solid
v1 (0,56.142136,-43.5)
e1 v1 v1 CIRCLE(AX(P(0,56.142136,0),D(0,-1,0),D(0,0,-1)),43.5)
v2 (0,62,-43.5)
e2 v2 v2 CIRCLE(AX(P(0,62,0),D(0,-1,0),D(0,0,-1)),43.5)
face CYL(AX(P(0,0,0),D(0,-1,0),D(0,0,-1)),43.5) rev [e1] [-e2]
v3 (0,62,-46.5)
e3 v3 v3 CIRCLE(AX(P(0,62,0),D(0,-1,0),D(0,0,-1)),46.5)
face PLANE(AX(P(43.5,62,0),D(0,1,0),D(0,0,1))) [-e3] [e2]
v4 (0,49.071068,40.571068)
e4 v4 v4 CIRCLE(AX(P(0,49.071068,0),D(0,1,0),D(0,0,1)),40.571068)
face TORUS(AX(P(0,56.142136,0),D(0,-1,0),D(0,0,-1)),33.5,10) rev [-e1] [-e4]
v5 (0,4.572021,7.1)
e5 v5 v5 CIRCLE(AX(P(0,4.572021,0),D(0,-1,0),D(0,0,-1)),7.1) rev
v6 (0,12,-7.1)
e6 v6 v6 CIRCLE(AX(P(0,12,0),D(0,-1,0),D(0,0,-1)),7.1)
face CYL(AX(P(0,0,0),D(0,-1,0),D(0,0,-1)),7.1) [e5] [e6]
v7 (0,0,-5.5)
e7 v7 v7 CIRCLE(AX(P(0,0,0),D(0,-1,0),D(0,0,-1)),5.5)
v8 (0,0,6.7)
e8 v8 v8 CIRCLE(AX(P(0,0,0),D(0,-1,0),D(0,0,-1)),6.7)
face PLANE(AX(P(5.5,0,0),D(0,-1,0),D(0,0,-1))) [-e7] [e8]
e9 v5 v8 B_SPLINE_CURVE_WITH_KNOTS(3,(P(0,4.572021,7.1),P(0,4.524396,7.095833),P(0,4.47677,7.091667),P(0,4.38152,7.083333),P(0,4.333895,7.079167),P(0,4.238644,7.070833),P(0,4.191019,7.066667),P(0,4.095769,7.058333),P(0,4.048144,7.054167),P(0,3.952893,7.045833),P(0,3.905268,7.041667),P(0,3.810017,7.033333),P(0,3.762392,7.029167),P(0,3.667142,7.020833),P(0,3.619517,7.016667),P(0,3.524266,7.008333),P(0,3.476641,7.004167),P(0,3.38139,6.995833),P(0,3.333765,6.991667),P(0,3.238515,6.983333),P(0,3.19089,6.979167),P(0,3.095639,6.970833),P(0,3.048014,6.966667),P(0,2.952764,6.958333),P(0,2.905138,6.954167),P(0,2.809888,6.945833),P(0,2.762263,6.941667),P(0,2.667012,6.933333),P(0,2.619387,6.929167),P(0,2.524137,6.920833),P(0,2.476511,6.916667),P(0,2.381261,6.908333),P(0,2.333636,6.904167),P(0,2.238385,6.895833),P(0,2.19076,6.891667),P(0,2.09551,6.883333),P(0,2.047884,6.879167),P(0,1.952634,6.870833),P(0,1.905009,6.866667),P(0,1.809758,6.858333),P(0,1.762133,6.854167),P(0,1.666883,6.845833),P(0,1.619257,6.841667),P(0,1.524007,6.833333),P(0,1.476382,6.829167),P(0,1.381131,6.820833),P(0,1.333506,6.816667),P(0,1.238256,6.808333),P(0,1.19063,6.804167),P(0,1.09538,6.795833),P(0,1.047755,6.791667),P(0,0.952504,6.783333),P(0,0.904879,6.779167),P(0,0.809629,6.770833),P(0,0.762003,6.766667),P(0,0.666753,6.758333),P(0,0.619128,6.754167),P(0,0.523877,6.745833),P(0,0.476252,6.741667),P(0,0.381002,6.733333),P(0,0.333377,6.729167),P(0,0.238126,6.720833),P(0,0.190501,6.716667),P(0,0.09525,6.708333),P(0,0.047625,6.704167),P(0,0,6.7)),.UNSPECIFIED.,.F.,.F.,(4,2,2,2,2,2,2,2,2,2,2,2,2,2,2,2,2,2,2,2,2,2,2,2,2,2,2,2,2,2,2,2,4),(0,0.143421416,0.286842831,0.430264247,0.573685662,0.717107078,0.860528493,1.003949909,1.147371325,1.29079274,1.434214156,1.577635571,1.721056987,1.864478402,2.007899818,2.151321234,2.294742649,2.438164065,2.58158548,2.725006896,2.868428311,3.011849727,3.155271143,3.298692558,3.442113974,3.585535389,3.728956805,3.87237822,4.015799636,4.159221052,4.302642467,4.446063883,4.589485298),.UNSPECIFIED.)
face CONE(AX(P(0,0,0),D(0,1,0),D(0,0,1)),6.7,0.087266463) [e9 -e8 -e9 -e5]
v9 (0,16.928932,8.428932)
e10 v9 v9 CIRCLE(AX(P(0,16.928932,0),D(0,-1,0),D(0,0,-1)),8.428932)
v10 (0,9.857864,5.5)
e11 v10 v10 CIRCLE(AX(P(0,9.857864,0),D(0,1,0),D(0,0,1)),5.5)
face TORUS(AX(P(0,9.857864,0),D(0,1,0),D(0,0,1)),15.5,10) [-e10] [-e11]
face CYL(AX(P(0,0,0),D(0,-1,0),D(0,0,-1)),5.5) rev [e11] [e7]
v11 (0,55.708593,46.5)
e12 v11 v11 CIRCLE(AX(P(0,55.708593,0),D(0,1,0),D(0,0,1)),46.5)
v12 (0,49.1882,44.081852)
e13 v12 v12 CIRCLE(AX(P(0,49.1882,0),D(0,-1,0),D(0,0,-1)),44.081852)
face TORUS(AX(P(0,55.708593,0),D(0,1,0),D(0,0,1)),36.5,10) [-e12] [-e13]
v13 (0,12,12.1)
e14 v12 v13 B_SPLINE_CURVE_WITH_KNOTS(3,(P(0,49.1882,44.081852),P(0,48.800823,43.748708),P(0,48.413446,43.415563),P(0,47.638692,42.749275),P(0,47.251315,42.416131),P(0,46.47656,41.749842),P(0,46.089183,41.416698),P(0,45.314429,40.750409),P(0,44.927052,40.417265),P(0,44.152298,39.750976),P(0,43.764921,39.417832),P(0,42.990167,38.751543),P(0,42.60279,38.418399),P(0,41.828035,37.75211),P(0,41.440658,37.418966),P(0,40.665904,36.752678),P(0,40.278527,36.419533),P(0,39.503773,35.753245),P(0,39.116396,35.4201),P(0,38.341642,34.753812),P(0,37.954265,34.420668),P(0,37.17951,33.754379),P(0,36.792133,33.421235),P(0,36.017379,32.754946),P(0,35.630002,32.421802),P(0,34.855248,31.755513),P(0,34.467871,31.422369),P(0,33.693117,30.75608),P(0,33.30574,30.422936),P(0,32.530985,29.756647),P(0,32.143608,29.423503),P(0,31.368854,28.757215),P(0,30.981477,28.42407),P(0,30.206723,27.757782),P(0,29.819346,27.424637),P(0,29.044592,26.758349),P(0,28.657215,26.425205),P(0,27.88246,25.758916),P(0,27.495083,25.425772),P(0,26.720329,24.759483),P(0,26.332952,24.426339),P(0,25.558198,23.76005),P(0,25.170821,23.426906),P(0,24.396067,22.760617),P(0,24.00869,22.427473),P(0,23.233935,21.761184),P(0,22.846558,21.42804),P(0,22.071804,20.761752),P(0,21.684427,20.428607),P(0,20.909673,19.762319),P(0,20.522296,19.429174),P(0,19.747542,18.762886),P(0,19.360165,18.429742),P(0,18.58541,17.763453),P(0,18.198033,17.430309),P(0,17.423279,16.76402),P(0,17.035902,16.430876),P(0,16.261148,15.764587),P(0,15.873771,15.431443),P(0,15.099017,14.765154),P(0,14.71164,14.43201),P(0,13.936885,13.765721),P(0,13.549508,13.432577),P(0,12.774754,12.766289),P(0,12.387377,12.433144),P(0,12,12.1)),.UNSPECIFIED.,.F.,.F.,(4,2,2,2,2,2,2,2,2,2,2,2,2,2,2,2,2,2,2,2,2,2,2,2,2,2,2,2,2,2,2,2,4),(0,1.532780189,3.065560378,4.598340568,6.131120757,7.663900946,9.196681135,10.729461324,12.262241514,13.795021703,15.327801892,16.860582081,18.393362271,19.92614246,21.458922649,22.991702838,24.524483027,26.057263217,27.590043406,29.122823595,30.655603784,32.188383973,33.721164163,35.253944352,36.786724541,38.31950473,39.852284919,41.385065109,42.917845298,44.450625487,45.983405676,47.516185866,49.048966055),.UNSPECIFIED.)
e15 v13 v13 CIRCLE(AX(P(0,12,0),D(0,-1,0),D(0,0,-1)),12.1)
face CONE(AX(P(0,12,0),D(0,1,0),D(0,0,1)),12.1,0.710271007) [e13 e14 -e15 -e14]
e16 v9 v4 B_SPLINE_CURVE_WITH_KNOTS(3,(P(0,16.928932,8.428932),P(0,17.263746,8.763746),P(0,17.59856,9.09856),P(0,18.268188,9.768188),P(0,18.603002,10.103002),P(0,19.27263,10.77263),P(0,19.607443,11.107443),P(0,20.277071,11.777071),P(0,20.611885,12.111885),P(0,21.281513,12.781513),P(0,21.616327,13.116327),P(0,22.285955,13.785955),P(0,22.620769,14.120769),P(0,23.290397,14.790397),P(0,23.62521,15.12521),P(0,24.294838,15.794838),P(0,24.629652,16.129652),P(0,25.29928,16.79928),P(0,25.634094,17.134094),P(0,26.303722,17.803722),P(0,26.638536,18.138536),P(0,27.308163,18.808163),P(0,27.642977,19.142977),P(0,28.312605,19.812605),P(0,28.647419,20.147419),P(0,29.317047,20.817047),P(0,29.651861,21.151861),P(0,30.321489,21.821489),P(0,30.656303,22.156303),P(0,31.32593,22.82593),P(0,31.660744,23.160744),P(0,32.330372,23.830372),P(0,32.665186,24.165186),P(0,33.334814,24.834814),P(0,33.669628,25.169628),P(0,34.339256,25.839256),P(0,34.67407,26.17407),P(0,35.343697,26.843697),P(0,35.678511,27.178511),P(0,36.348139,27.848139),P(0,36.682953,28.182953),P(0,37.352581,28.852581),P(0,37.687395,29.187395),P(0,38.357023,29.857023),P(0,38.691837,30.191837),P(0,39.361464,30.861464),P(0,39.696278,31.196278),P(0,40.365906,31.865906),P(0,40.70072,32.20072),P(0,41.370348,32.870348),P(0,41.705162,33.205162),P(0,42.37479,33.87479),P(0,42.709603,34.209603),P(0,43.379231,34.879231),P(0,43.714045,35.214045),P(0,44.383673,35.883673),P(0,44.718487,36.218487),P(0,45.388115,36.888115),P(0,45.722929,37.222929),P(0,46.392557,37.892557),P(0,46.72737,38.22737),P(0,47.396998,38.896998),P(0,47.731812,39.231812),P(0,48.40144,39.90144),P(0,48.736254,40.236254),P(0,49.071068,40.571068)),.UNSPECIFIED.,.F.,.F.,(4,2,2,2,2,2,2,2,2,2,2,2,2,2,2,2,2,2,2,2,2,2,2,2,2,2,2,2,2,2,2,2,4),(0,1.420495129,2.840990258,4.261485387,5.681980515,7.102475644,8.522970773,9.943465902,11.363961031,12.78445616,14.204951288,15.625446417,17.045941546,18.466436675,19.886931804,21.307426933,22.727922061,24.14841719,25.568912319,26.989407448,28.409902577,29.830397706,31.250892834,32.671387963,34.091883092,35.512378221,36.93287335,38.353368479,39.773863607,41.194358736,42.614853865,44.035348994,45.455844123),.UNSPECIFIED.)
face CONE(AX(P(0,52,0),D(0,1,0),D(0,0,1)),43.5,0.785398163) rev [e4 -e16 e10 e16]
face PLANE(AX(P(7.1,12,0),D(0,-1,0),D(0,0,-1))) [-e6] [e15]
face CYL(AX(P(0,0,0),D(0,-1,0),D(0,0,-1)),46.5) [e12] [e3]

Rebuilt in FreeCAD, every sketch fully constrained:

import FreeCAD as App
import Part
import Sketcher
from FreeCAD import Vector
Q = App.Units.Quantity


def edges_at(feature, points):
    """Names of the edges that pass closest to the given points."""
    edges = feature.Shape.Edges
    near = lambda p: min(range(len(edges)), key=lambda i: edges[i].distToShape(Part.Vertex(*p))[0])
    return sorted({f"Edge{near(p) + 1}" for p in points})


def add_polygon(sketch, points):
    """Adds a closed chain of lines whose ends are joined by coincident constraints."""
    first, n = sketch.GeometryCount, len(points)
    for a, b in zip(points, points[1:] + points[:1]):
        sketch.addGeometry(Part.LineSegment(App.Vector(*a, 0), App.Vector(*b, 0)), False)
    for i in range(n):
        sketch.addConstraint(Sketcher.Constraint("Coincident", first + i, 2, first + (i + 1) % n, 1))

doc = App.newDocument("Part")
params = doc.addObject("Spreadsheet::Sheet", "Params")
for row, (alias, value) in enumerate([
    ("sketch1_width", "5 mm"),
    ("sketch1_width2", "3 mm"),
    ("sketch1_height", "12 mm"),
    ("sketch1_height2", "10 mm"),
    ("sketch1_height3", "14 mm"),
    ("revolution_angle", "360 deg"),
    ("fillet_radius", "10 mm"),
    ("chamfer_size", "0.4 mm"),
    ("chamfer_size2", "4.572021 mm"),
], start=1):
    params.set(f"A{row}", alias)
    params.set(f"B{row}", "=" + value)
    params.setAlias(f"B{row}", alias)

body = doc.addObject("PartDesign::Body", "Body")

# Sketch on XY plane
sketch1 = body.newObject("Sketcher::SketchObject", "Sketch")
sketch1.AttachmentSupport = (doc.getObject("XY_Plane"), [""])
sketch1.MapMode = "FlatFace"
add_polygon(sketch1, [(5.5, 0), (7.1, 0), (7.1, 12), (12.1, 12), (46.5, 52), (46.5, 62), (43.5, 62), (43.5, 52), (5.5, 14)])  # lines 0-8
sketch1.addConstraint(Sketcher.Constraint("Horizontal", 0))
sketch1.addConstraint(Sketcher.Constraint("Vertical", 1))
sketch1.addConstraint(Sketcher.Constraint("Horizontal", 2))
sketch1.addConstraint(Sketcher.Constraint("Vertical", 4))
sketch1.addConstraint(Sketcher.Constraint("Horizontal", 5))
sketch1.addConstraint(Sketcher.Constraint("Vertical", 6))
sketch1.addConstraint(Sketcher.Constraint("Vertical", 8))
sketch1.addConstraint(Sketcher.Constraint("PointOnObject", 0, 2, -1))
sketch1.addConstraint(Sketcher.Constraint("Horizontal", 3, 2, 6, 2))
sketch1.addConstraint(Sketcher.Constraint("DistanceX", 2, 1, 2, 2, Q("5 mm")))
sketch1.addConstraint(Sketcher.Constraint("DistanceX", 5, 2, 5, 1, Q("3 mm")))
sketch1.addConstraint(Sketcher.Constraint("DistanceY", 1, 1, 1, 2, Q("12 mm")))
sketch1.addConstraint(Sketcher.Constraint("DistanceY", 4, 1, 4, 2, Q("10 mm")))
sketch1.addConstraint(Sketcher.Constraint("DistanceY", 8, 2, 8, 1, Q("14 mm")))
sketch1.addConstraint(Sketcher.Constraint("Angle", 7, Q("-135 deg")))
sketch1.addConstraint(Sketcher.Constraint("DistanceX", 0, 1, 0, 2, Q("1.6 mm")))
sketch1.addConstraint(Sketcher.Constraint("DistanceY", -1, 1, 3, 2, Q("52 mm")))
sketch1.addConstraint(Sketcher.Constraint("DistanceX", -1, 1, 0, 2, Q("7.1 mm")))
sketch1.setExpression("Constraints[18]", "Params.sketch1_width")
sketch1.setExpression("Constraints[19]", "Params.sketch1_width2")
sketch1.setExpression("Constraints[20]", "Params.sketch1_height")
sketch1.setExpression("Constraints[21]", "Params.sketch1_height2")
sketch1.setExpression("Constraints[22]", "Params.sketch1_height3")
revolution = body.newObject("PartDesign::Revolution", "Revolution")
revolution.Profile = sketch1
revolution.ReferenceAxis = (sketch1, ["V_Axis"])
revolution.setExpression("Angle", "Params.revolution_angle")
doc.recompute()

fillet = body.newObject("PartDesign::Fillet", "Fillet")
fillet.Base = (revolution, edges_at(revolution, [(0, 14, 5.5), (0, 52, 43.5), (0, 52, 46.5)]))
fillet.setExpression("Radius", "Params.fillet_radius")
doc.recompute()

chamfer = body.newObject("PartDesign::Chamfer", "Chamfer")
chamfer.Base = (fillet, edges_at(fillet, [(0, 0, 7.1)]))
chamfer.ChamferType = "Two distances"
chamfer.setExpression("Size", "Params.chamfer_size")
chamfer.setExpression("Size2", "Params.chamfer_size2")
chamfer.FlipDirection = True

doc.recompute()
